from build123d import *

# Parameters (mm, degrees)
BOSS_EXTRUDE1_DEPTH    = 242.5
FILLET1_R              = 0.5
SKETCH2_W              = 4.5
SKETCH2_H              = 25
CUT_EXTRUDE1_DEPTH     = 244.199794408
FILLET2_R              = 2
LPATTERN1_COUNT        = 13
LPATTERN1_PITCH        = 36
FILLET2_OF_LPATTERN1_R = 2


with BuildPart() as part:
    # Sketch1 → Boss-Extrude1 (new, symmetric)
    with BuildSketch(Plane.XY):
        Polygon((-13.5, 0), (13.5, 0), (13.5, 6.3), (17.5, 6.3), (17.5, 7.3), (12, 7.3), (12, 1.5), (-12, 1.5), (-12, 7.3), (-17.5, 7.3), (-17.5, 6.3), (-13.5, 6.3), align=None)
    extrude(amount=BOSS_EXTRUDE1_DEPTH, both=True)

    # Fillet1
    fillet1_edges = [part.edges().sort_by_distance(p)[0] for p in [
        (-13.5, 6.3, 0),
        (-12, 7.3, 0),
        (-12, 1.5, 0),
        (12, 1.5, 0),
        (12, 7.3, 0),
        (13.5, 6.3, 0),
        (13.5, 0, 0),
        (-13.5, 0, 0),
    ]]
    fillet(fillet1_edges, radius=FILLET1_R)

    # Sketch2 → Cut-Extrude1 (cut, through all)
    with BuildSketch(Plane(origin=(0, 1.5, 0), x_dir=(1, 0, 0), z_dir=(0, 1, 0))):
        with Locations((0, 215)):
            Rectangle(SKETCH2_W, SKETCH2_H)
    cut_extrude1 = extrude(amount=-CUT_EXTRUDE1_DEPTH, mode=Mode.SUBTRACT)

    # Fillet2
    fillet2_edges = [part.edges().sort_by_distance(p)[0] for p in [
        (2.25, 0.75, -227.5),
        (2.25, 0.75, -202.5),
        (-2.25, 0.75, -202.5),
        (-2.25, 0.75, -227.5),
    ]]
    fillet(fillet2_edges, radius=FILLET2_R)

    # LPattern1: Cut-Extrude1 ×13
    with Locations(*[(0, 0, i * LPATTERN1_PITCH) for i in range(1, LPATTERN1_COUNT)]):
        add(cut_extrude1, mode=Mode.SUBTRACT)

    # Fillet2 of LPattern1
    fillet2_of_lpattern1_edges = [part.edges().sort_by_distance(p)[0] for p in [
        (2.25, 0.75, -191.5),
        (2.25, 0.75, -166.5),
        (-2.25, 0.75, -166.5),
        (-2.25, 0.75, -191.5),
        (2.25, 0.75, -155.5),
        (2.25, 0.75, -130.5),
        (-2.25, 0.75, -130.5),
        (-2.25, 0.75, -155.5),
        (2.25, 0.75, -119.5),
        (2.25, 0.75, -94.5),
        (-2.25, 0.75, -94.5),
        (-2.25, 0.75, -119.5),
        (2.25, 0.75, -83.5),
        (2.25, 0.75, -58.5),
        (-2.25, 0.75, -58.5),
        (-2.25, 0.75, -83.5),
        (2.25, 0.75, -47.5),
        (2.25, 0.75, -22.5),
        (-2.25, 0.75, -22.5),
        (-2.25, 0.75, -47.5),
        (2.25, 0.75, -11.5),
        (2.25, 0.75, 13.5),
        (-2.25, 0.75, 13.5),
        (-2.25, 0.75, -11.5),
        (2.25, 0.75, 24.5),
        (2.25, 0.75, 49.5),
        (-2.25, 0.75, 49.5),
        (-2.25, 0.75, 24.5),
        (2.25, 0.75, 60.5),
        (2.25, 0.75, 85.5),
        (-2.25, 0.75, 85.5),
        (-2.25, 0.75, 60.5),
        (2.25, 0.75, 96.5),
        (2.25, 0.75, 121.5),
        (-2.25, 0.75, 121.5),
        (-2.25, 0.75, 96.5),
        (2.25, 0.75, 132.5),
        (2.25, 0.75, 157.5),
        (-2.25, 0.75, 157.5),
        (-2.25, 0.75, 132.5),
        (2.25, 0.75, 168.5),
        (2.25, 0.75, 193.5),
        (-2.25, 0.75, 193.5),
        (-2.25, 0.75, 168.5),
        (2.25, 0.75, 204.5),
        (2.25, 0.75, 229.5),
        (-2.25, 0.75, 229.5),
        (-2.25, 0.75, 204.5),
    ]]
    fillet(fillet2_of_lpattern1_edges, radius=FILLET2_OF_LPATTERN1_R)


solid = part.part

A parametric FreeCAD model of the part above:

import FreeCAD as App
import Part
import Sketcher
from FreeCAD import Vector


def edges_at(feature, points):
    """Names of the edges that pass closest to the given points."""
    edges = feature.Shape.Edges
    near = lambda p: min(range(len(edges)), key=lambda i: edges[i].distToShape(Part.Vertex(*p))[0])
    return sorted({f"Edge{near(p) + 1}" for p in points})

doc = App.newDocument("Part")
body = doc.addObject("PartDesign::Body", "Body")

# Sketch on XY plane
sketch1 = body.newObject("Sketcher::SketchObject", "Sketch")
sketch1.AttachmentSupport = (doc.getObject("XY_Plane"), [""])
sketch1.MapMode = "FlatFace"
sketch1.addGeometry(Part.LineSegment(Vector(-13.5, 0, 0), Vector(13.5, 0, 0)), False)
sketch1.addGeometry(Part.LineSegment(Vector(13.5, 0, 0), Vector(13.5, 6.3, 0)), False)
sketch1.addGeometry(Part.LineSegment(Vector(13.5, 6.3, 0), Vector(17.5, 6.3, 0)), False)
sketch1.addGeometry(Part.LineSegment(Vector(17.5, 6.3, 0), Vector(17.5, 7.3, 0)), False)
sketch1.addGeometry(Part.LineSegment(Vector(17.5, 7.3, 0), Vector(12, 7.3, 0)), False)
sketch1.addGeometry(Part.LineSegment(Vector(12, 7.3, 0), Vector(12, 1.5, 0)), False)
sketch1.addGeometry(Part.LineSegment(Vector(12, 1.5, 0), Vector(-12, 1.5, 0)), False)
sketch1.addGeometry(Part.LineSegment(Vector(-12, 1.5, 0), Vector(-12, 7.3, 0)), False)
sketch1.addGeometry(Part.LineSegment(Vector(-12, 7.3, 0), Vector(-17.5, 7.3, 0)), False)
sketch1.addGeometry(Part.LineSegment(Vector(-17.5, 7.3, 0), Vector(-17.5, 6.3, 0)), False)
sketch1.addGeometry(Part.LineSegment(Vector(-17.5, 6.3, 0), Vector(-13.5, 6.3, 0)), False)
sketch1.addGeometry(Part.LineSegment(Vector(-13.5, 6.3, 0), Vector(-13.5, 0, 0)), False)
sketch1.addConstraint(Sketcher.Constraint("Coincident", 0, 2, 1, 1))
sketch1.addConstraint(Sketcher.Constraint("Coincident", 1, 2, 2, 1))
sketch1.addConstraint(Sketcher.Constraint("Coincident", 2, 2, 3, 1))
sketch1.addConstraint(Sketcher.Constraint("Coincident", 3, 2, 4, 1))
sketch1.addConstraint(Sketcher.Constraint("Coincident", 4, 2, 5, 1))
sketch1.addConstraint(Sketcher.Constraint("Coincident", 5, 2, 6, 1))
sketch1.addConstraint(Sketcher.Constraint("Coincident", 6, 2, 7, 1))
sketch1.addConstraint(Sketcher.Constraint("Coincident", 7, 2, 8, 1))
sketch1.addConstraint(Sketcher.Constraint("Coincident", 8, 2, 9, 1))
sketch1.addConstraint(Sketcher.Constraint("Coincident", 9, 2, 10, 1))
sketch1.addConstraint(Sketcher.Constraint("Coincident", 10, 2, 11, 1))
sketch1.addConstraint(Sketcher.Constraint("Coincident", 11, 2, 0, 1))
sketch1.addConstraint(Sketcher.Constraint("Horizontal", 0))
sketch1.addConstraint(Sketcher.Constraint("Vertical", 1))
sketch1.addConstraint(Sketcher.Constraint("Horizontal", 2))
sketch1.addConstraint(Sketcher.Constraint("Vertical", 3))
sketch1.addConstraint(Sketcher.Constraint("Horizontal", 4))
sketch1.addConstraint(Sketcher.Constraint("Vertical", 5))
sketch1.addConstraint(Sketcher.Constraint("Horizontal", 6))
sketch1.addConstraint(Sketcher.Constraint("Vertical", 7))
sketch1.addConstraint(Sketcher.Constraint("Horizontal", 8))
sketch1.addConstraint(Sketcher.Constraint("Vertical", 9))
sketch1.addConstraint(Sketcher.Constraint("Horizontal", 10))
sketch1.addConstraint(Sketcher.Constraint("Vertical", 11))
sketch1.addConstraint(Sketcher.Constraint("Symmetric", 0, 2, 11, 2, -1, 1))
sketch1.addConstraint(Sketcher.Constraint("Symmetric", 4, 2, 7, 2, -2))
sketch1.addConstraint(Sketcher.Constraint("Symmetric", 2, 2, 9, 2, -2))
sketch1.addConstraint(Sketcher.Constraint("DistanceX", 0, 1, 0, 2, 27.0))
sketch1.addConstraint(Sketcher.Constraint("DistanceX", 2, 1, 2, 2, 4.0))
sketch1.addConstraint(Sketcher.Constraint("DistanceX", 6, 2, 6, 1, 24.0))
sketch1.addConstraint(Sketcher.Constraint("DistanceY", 3, 1, 3, 2, 1.0))
sketch1.addConstraint(Sketcher.Constraint("DistanceY", 1, 1, 1, 2, 6.3))
sketch1.addConstraint(Sketcher.Constraint("DistanceY", 5, 2, 5, 1, 5.8))
pad1 = body.newObject("PartDesign::Pad", "Pad")
pad1.Profile = sketch1
pad1.Length = 485
pad1.Midplane = True
doc.recompute()

fillet = body.newObject("PartDesign::Fillet", "Fillet")
fillet.Base = (pad1, edges_at(pad1, [
    (-13.5, 6.3, 0),
    (-12, 7.3, 0),
    (-12, 1.5, 0),
    (12, 1.5, 0),
    (12, 7.3, 0),
    (13.5, 6.3, 0),
    (13.5, 0, 0),
    (-13.5, 0, 0),
]))
fillet.Radius = 0.5

# Sketch on XZ plane
sketch2 = body.newObject("Sketcher::SketchObject", "Sketch001")
sketch2.AttachmentSupport = (doc.getObject("XZ_Plane"), [""])
sketch2.MapMode = "FlatFace"
sketch2.AttachmentOffset = App.Placement(Vector(0, 0, -1.5), App.Rotation())
sketch2.addGeometry(Part.LineSegment(Vector(-2.25, -227.5, 0), Vector(-2.25, -202.5, 0)), False)
sketch2.addGeometry(Part.LineSegment(Vector(-2.25, -202.5, 0), Vector(2.25, -202.5, 0)), False)
sketch2.addGeometry(Part.LineSegment(Vector(2.25, -202.5, 0), Vector(2.25, -227.5, 0)), False)
sketch2.addGeometry(Part.LineSegment(Vector(2.25, -227.5, 0), Vector(-2.25, -227.5, 0)), False)
sketch2.addConstraint(Sketcher.Constraint("Coincident", 0, 2, 1, 1))
sketch2.addConstraint(Sketcher.Constraint("Coincident", 1, 2, 2, 1))
sketch2.addConstraint(Sketcher.Constraint("Coincident", 2, 2, 3, 1))
sketch2.addConstraint(Sketcher.Constraint("Coincident", 3, 2, 0, 1))
sketch2.addConstraint(Sketcher.Constraint("Vertical", 0))
sketch2.addConstraint(Sketcher.Constraint("Horizontal", 1))
sketch2.addConstraint(Sketcher.Constraint("Vertical", 2))
sketch2.addConstraint(Sketcher.Constraint("Horizontal", 3))
sketch2.addConstraint(Sketcher.Constraint("DistanceY", 0, 1, 0, 2, 25.0))
sketch2.addConstraint(Sketcher.Constraint("DistanceX", 1, 1, 1, 2, 4.5))
sketch2.addConstraint(Sketcher.Constraint("DistanceY", 0, 2, -1, 1, 202.5))
sketch2.addConstraint(Sketcher.Constraint("DistanceX", 0, 2, -1, 1, 2.25))
pocket1 = body.newObject("PartDesign::Pocket", "Pocket")
pocket1.Profile = sketch2
pocket1.Type = "ThroughAll"
pocket1.Reversed = True
doc.recompute()

fillet2 = body.newObject("PartDesign::Fillet", "Fillet001")
fillet2.Base = (pocket1, edges_at(pocket1, [
    (2.25, 0.75, -227.5),
    (2.25, 0.75, -202.5),
    (-2.25, 0.75, -202.5),
    (-2.25, 0.75, -227.5),
]))
fillet2.Radius = 2
doc.recompute()

linearpattern = body.newObject("PartDesign::LinearPattern", "LinearPattern")
linearpattern.Originals = [pocket1]
linearpattern.Direction = (doc.getObject("Z_Axis"), [""])
linearpattern.Mode = "offset"
linearpattern.Offset = 36
linearpattern.Occurrences = 13
body.Tip = linearpattern
doc.recompute()

fillet3 = body.newObject("PartDesign::Fillet", "Fillet002")
fillet3.Base = (linearpattern, edges_at(linearpattern, [
    (2.25, 0.75, -191.5),
    (2.25, 0.75, -166.5),
    (-2.25, 0.75, -166.5),
    (-2.25, 0.75, -191.5),
    (2.25, 0.75, -155.5),
    (2.25, 0.75, -130.5),
    (-2.25, 0.75, -130.5),
    (-2.25, 0.75, -155.5),
    (2.25, 0.75, -119.5),
    (2.25, 0.75, -94.5),
    (-2.25, 0.75, -94.5),
    (-2.25, 0.75, -119.5),
    (2.25, 0.75, -83.5),
    (2.25, 0.75, -58.5),
    (-2.25, 0.75, -58.5),
    (-2.25, 0.75, -83.5),
    (2.25, 0.75, -47.5),
    (2.25, 0.75, -22.5),
    (-2.25, 0.75, -22.5),
    (-2.25, 0.75, -47.5),
    (2.25, 0.75, -11.5),
    (2.25, 0.75, 13.5),
    (-2.25, 0.75, 13.5),
    (-2.25, 0.75, -11.5),
    (2.25, 0.75, 24.5),
    (2.25, 0.75, 49.5),
    (-2.25, 0.75, 49.5),
    (-2.25, 0.75, 24.5),
    (2.25, 0.75, 60.5),
    (2.25, 0.75, 85.5),
    (-2.25, 0.75, 85.5),
    (-2.25, 0.75, 60.5),
    (2.25, 0.75, 96.5),
    (2.25, 0.75, 121.5),
    (-2.25, 0.75, 121.5),
    (-2.25, 0.75, 96.5),
    (2.25, 0.75, 132.5),
    (2.25, 0.75, 157.5),
    (-2.25, 0.75, 157.5),
    (-2.25, 0.75, 132.5),
    (2.25, 0.75, 168.5),
    (2.25, 0.75, 193.5),
    (-2.25, 0.75, 193.5),
    (-2.25, 0.75, 168.5),
    (2.25, 0.75, 204.5),
    (2.25, 0.75, 229.5),
    (-2.25, 0.75, 229.5),
    (-2.25, 0.75, 204.5),
]))
fillet3.Radius = 2

doc.recompute()
